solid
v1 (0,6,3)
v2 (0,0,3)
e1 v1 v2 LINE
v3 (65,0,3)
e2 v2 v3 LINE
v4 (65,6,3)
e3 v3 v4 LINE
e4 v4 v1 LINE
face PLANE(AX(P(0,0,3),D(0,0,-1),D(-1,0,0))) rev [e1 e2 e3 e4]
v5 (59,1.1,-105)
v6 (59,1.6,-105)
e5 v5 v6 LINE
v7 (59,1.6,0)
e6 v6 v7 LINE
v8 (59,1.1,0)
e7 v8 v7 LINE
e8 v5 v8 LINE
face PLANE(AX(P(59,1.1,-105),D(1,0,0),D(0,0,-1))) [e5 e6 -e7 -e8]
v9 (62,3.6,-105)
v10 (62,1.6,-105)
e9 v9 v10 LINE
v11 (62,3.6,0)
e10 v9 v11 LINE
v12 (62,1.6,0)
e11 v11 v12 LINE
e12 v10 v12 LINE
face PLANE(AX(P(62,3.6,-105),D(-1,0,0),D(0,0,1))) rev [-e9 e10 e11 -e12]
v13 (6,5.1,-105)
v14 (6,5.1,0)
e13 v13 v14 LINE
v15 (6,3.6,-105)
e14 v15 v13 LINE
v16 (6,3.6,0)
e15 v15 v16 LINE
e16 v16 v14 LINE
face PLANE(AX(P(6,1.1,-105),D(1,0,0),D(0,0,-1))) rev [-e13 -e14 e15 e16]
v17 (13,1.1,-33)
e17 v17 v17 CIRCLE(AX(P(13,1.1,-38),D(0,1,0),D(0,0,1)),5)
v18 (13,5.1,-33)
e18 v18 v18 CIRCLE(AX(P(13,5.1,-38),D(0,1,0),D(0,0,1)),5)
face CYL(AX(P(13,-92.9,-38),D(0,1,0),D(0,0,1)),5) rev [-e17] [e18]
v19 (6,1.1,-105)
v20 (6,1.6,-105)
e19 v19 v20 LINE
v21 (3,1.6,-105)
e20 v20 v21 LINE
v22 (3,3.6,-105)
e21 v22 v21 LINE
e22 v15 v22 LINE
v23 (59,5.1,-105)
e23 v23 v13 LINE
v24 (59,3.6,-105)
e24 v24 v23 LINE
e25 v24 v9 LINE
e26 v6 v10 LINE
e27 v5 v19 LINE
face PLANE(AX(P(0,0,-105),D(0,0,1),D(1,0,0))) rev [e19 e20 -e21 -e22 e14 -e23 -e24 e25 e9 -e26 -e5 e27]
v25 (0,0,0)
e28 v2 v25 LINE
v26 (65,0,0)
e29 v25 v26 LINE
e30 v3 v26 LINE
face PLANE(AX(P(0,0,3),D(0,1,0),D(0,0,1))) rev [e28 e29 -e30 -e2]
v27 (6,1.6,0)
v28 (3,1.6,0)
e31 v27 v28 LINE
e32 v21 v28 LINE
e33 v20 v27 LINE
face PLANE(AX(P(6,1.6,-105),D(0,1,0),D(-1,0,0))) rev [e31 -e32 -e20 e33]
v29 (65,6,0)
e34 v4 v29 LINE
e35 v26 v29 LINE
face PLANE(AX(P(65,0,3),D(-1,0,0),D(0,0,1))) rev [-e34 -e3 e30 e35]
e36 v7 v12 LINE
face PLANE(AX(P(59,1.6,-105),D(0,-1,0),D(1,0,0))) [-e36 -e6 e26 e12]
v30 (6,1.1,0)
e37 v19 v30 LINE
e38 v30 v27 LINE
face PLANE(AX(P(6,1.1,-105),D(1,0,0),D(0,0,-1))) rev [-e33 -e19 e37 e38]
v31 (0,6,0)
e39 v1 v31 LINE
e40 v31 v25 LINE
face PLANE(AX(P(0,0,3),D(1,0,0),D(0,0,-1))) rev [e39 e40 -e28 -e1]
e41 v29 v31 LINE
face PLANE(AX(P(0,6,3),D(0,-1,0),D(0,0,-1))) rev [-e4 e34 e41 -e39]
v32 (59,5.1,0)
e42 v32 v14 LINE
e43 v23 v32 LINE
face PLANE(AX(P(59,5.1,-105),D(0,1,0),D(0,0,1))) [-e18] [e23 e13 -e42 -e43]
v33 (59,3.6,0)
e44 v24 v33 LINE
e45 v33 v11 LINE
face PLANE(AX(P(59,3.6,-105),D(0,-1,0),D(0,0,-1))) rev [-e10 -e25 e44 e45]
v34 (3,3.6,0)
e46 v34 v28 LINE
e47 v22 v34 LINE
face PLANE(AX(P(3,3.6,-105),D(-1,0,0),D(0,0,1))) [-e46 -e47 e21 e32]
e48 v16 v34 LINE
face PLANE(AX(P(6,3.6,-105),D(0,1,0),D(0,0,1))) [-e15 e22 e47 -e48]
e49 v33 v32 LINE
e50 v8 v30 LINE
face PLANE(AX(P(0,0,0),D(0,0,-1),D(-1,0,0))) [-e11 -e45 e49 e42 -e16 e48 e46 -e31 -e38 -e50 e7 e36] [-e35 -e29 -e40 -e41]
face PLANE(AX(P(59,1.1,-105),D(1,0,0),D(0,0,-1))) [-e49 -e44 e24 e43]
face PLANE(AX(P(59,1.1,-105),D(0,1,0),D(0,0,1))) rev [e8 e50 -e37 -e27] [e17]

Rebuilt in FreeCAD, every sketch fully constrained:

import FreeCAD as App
import Part
import Sketcher

doc = App.newDocument("Part")
params = doc.addObject("Spreadsheet::Sheet", "Params")
for row, (alias, value) in enumerate([
    ("sketch1_width", "65 mm"),
    ("sketch1_height", "6 mm"),
    ("pad1_length", "3 mm"),
    ("sketch2_width", "53 mm"),
    ("sketch2_width2", "3 mm"),
    ("sketch2_height", "2 mm"),
    ("sketch2_height2", "0.5 mm"),
    ("sketch2_height3", "1.5 mm"),
    ("pad2_length", "105 mm"),
    ("sketch3_diameter", "10 mm"),
    ("pocket1_length", "98 mm"),
], start=1):
    params.set(f"A{row}", alias)
    params.set(f"B{row}", "=" + value)
    params.setAlias(f"B{row}", alias)

body = doc.addObject("PartDesign::Body", "Body")

sketch1 = body.newObject("Sketcher::SketchObject", "Sketch")
sketch1.AttachmentSupport = (doc.getObject("XY_Plane"), [""])
sketch1.MapMode = "FlatFace"
sketch1.addGeometry(Part.LineSegment(App.Vector(0, 6, 0), App.Vector(0, 0, 0)), False)
sketch1.addGeometry(Part.LineSegment(App.Vector(0, 0, 0), App.Vector(65, 0, 0)), False)
sketch1.addGeometry(Part.LineSegment(App.Vector(65, 0, 0), App.Vector(65, 6, 0)), False)
sketch1.addGeometry(Part.LineSegment(App.Vector(65, 6, 0), App.Vector(0, 6, 0)), False)
sketch1.addConstraint(Sketcher.Constraint("Coincident", 0, 2, 1, 1))
sketch1.addConstraint(Sketcher.Constraint("Coincident", 1, 2, 2, 1))
sketch1.addConstraint(Sketcher.Constraint("Coincident", 2, 2, 3, 1))
sketch1.addConstraint(Sketcher.Constraint("Coincident", 3, 2, 0, 1))
sketch1.addConstraint(Sketcher.Constraint("Vertical", 0))
sketch1.addConstraint(Sketcher.Constraint("Horizontal", 1))
sketch1.addConstraint(Sketcher.Constraint("Vertical", 2))
sketch1.addConstraint(Sketcher.Constraint("Horizontal", 3))
sketch1.addConstraint(Sketcher.Constraint("Coincident", 0, 2, -1, 1))
sketch1.addConstraint(Sketcher.Constraint("DistanceX", 1, 1, 1, 2, 65.0))
sketch1.addConstraint(Sketcher.Constraint("DistanceY", 0, 2, 0, 1, 6.0))
sketch1.setExpression("Constraints[9]", "Params.sketch1_width")
sketch1.setExpression("Constraints[10]", "Params.sketch1_height")
pad1 = body.newObject("PartDesign::Pad", "Pad")
pad1.Profile = sketch1
pad1.setExpression("Length", "Params.pad1_length")

sketch2 = body.newObject("Sketcher::SketchObject", "Sketch001")
sketch2.AttachmentSupport = (doc.getObject("XY_Plane"), [""])
sketch2.MapMode = "FlatFace"
sketch2.addGeometry(Part.LineSegment(App.Vector(59, 1.6, 0), App.Vector(59, 1.1, 0)), False)
sketch2.addGeometry(Part.LineSegment(App.Vector(59, 1.1, 0), App.Vector(6, 1.1, 0)), False)
sketch2.addGeometry(Part.LineSegment(App.Vector(6, 1.1, 0), App.Vector(6, 1.6, 0)), False)
sketch2.addGeometry(Part.LineSegment(App.Vector(6, 1.6, 0), App.Vector(3, 1.6, 0)), False)
sketch2.addGeometry(Part.LineSegment(App.Vector(3, 1.6, 0), App.Vector(3, 3.6, 0)), False)
sketch2.addGeometry(Part.LineSegment(App.Vector(3, 3.6, 0), App.Vector(6, 3.6, 0)), False)
sketch2.addGeometry(Part.LineSegment(App.Vector(6, 3.6, 0), App.Vector(6, 5.1, 0)), False)
sketch2.addGeometry(Part.LineSegment(App.Vector(6, 5.1, 0), App.Vector(59, 5.1, 0)), False)
sketch2.addGeometry(Part.LineSegment(App.Vector(59, 5.1, 0), App.Vector(59, 3.6, 0)), False)
sketch2.addGeometry(Part.LineSegment(App.Vector(59, 3.6, 0), App.Vector(62, 3.6, 0)), False)
sketch2.addGeometry(Part.LineSegment(App.Vector(62, 3.6, 0), App.Vector(62, 1.6, 0)), False)
sketch2.addGeometry(Part.LineSegment(App.Vector(62, 1.6, 0), App.Vector(59, 1.6, 0)), False)
sketch2.addConstraint(Sketcher.Constraint("Coincident", 0, 2, 1, 1))
sketch2.addConstraint(Sketcher.Constraint("Coincident", 1, 2, 2, 1))
sketch2.addConstraint(Sketcher.Constraint("Coincident", 2, 2, 3, 1))
sketch2.addConstraint(Sketcher.Constraint("Coincident", 3, 2, 4, 1))
sketch2.addConstraint(Sketcher.Constraint("Coincident", 4, 2, 5, 1))
sketch2.addConstraint(Sketcher.Constraint("Coincident", 5, 2, 6, 1))
sketch2.addConstraint(Sketcher.Constraint("Coincident", 6, 2, 7, 1))
sketch2.addConstraint(Sketcher.Constraint("Coincident", 7, 2, 8, 1))
sketch2.addConstraint(Sketcher.Constraint("Coincident", 8, 2, 9, 1))
sketch2.addConstraint(Sketcher.Constraint("Coincident", 9, 2, 10, 1))
sketch2.addConstraint(Sketcher.Constraint("Coincident", 10, 2, 11, 1))
sketch2.addConstraint(Sketcher.Constraint("Coincident", 11, 2, 0, 1))
sketch2.addConstraint(Sketcher.Constraint("Vertical", 0))
sketch2.addConstraint(Sketcher.Constraint("Horizontal", 1))
sketch2.addConstraint(Sketcher.Constraint("Vertical", 2))
sketch2.addConstraint(Sketcher.Constraint("Horizontal", 3))
sketch2.addConstraint(Sketcher.Constraint("Vertical", 4))
sketch2.addConstraint(Sketcher.Constraint("Horizontal", 5))
sketch2.addConstraint(Sketcher.Constraint("Vertical", 6))
sketch2.addConstraint(Sketcher.Constraint("Horizontal", 7))
sketch2.addConstraint(Sketcher.Constraint("Vertical", 8))
sketch2.addConstraint(Sketcher.Constraint("Horizontal", 9))
sketch2.addConstraint(Sketcher.Constraint("Vertical", 10))
sketch2.addConstraint(Sketcher.Constraint("Horizontal", 11))
sketch2.addConstraint(Sketcher.Constraint("Horizontal", 5, 2, 8, 2))
sketch2.addConstraint(Sketcher.Constraint("Horizontal", 3, 2, 10, 2))
sketch2.addConstraint(Sketcher.Constraint("Vertical", 2, 2, 5, 2))
sketch2.addConstraint(Sketcher.Constraint("Vertical", 0, 2, 7, 2))
sketch2.addConstraint(Sketcher.Constraint("Equal", 5, 9))
sketch2.addConstraint(Sketcher.Constraint("DistanceX", 1, 2, 1, 1, 53.0))
sketch2.addConstraint(Sketcher.Constraint("DistanceX", 3, 2, 3, 1, 3.0))
sketch2.addConstraint(Sketcher.Constraint("DistanceY", 4, 1, 4, 2, 2.0))
sketch2.addConstraint(Sketcher.Constraint("DistanceY", 0, 2, 0, 1, 0.5))
sketch2.addConstraint(Sketcher.Constraint("DistanceY", 6, 1, 6, 2, 1.5))
sketch2.addConstraint(Sketcher.Constraint("DistanceX", -1, 1, 0, 2, 59.0))
sketch2.addConstraint(Sketcher.Constraint("DistanceY", -1, 1, 0, 2, 1.1))
sketch2.setExpression("Constraints[29]", "Params.sketch2_width")
sketch2.setExpression("Constraints[30]", "Params.sketch2_width2")
sketch2.setExpression("Constraints[31]", "Params.sketch2_height")
sketch2.setExpression("Constraints[32]", "Params.sketch2_height2")
sketch2.setExpression("Constraints[33]", "Params.sketch2_height3")
pad2 = body.newObject("PartDesign::Pad", "Pad001")
pad2.Profile = sketch2
pad2.setExpression("Length", "Params.pad2_length")
pad2.Reversed = True

sketch3 = body.newObject("Sketcher::SketchObject", "Sketch002")
sketch3.AttachmentSupport = (doc.getObject("XZ_Plane"), [""])
sketch3.MapMode = "FlatFace"
sketch3.AttachmentOffset = App.Placement(App.Vector(0, 0, -5.1), App.Rotation())
sketch3.addGeometry(Part.Circle(App.Vector(13, -38, 0), App.Vector(0, 0, 1), 5), False)
sketch3.addConstraint(Sketcher.Constraint("Diameter", 0, 10.0))
sketch3.addConstraint(Sketcher.Constraint("DistanceX", -1, 1, 0, 3, 13.0))
sketch3.addConstraint(Sketcher.Constraint("DistanceY", 0, 3, -1, 1, 38.0))
sketch3.setExpression("Constraints[0]", "Params.sketch3_diameter")
pocket1 = body.newObject("PartDesign::Pocket", "Pocket")
pocket1.Profile = sketch3
pocket1.setExpression("Length", "Params.pocket1_length")
pocket1.Reversed = True

doc.recompute()
